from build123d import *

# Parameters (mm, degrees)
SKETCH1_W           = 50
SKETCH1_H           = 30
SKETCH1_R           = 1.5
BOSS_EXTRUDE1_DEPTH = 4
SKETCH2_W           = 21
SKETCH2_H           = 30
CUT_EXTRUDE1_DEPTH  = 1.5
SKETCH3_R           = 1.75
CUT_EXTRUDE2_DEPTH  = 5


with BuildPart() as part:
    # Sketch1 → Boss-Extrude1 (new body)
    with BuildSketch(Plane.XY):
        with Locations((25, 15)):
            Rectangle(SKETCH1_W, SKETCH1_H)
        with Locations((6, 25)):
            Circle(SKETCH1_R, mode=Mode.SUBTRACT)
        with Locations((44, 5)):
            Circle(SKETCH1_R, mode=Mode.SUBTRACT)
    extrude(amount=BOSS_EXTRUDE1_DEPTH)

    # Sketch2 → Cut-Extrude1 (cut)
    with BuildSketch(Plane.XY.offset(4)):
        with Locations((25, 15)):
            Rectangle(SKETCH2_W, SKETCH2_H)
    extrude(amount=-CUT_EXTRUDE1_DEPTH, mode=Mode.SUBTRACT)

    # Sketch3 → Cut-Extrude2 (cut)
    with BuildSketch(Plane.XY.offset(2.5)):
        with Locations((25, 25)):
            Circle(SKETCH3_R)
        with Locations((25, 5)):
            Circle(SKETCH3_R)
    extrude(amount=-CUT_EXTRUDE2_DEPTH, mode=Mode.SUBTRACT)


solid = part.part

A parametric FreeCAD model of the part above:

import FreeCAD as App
import Part
import Sketcher
Q = App.Units.Quantity


def add_polygon(sketch, points):
    """Adds a closed chain of lines whose ends are joined by coincident constraints."""
    first, n = sketch.GeometryCount, len(points)
    for a, b in zip(points, points[1:] + points[:1]):
        sketch.addGeometry(Part.LineSegment(App.Vector(*a, 0), App.Vector(*b, 0)), False)
    for i in range(n):
        sketch.addConstraint(Sketcher.Constraint("Coincident", first + i, 2, first + (i + 1) % n, 1))

doc = App.newDocument("Part")
body = doc.addObject("PartDesign::Body", "Body")

# Sketch on XY plane
sketch1 = body.newObject("Sketcher::SketchObject", "Sketch")
sketch1.AttachmentSupport = (doc.getObject("XY_Plane"), [""])
sketch1.MapMode = "FlatFace"
add_polygon(sketch1, [(0, 30), (0, 0), (50, 0), (50, 30)])  # lines 0-3
sketch1.addGeometry(Part.Circle(App.Vector(44, 5, 0), App.Vector(0, 0, 1), 1.5), False)  # 4
sketch1.addGeometry(Part.Circle(App.Vector(6, 25, 0), App.Vector(0, 0, 1), 1.5), False)  # 5
sketch1.addConstraint(Sketcher.Constraint("Vertical", 0))
sketch1.addConstraint(Sketcher.Constraint("Horizontal", 1))
sketch1.addConstraint(Sketcher.Constraint("Vertical", 2))
sketch1.addConstraint(Sketcher.Constraint("Horizontal", 3))
sketch1.addConstraint(Sketcher.Constraint("Coincident", 0, 2, -1, 1))
sketch1.addConstraint(Sketcher.Constraint("Equal", 4, 5))
sketch1.addConstraint(Sketcher.Constraint("Diameter", 4, Q("3 mm")))
sketch1.addConstraint(Sketcher.Constraint("DistanceX", 1, 1, 1, 2, Q("50 mm")))
sketch1.addConstraint(Sketcher.Constraint("DistanceY", 0, 2, 0, 1, Q("30 mm")))
sketch1.addConstraint(Sketcher.Constraint("DistanceX", -1, 1, 4, 3, Q("44 mm")))
sketch1.addConstraint(Sketcher.Constraint("DistanceY", -1, 1, 4, 3, Q("5 mm")))
sketch1.addConstraint(Sketcher.Constraint("DistanceX", -1, 1, 5, 3, Q("6 mm")))
sketch1.addConstraint(Sketcher.Constraint("DistanceY", -1, 1, 5, 3, Q("25 mm")))
pad1 = body.newObject("PartDesign::Pad", "Pad")
pad1.Profile = sketch1
pad1.Length = 4

# Sketch on XY plane
sketch2 = body.newObject("Sketcher::SketchObject", "Sketch001")
sketch2.AttachmentSupport = (doc.getObject("XY_Plane"), [""])
sketch2.MapMode = "FlatFace"
sketch2.AttachmentOffset = App.Placement(App.Vector(0, 0, 4), App.Rotation())
add_polygon(sketch2, [(14, 30), (14, 0), (36, 0), (36, 30)])  # lines 0-3
sketch2.addConstraint(Sketcher.Constraint("Vertical", 0))
sketch2.addConstraint(Sketcher.Constraint("Horizontal", 1))
sketch2.addConstraint(Sketcher.Constraint("Vertical", 2))
sketch2.addConstraint(Sketcher.Constraint("Horizontal", 3))
sketch2.addConstraint(Sketcher.Constraint("PointOnObject", 0, 2, -1))
sketch2.addConstraint(Sketcher.Constraint("DistanceX", 1, 1, 1, 2, Q("21 mm")))
sketch2.addConstraint(Sketcher.Constraint("DistanceY", 0, 2, 0, 1, Q("30 mm")))
sketch2.addConstraint(Sketcher.Constraint("DistanceX", -1, 1, 0, 2, Q("14.5 mm")))
pocket1 = body.newObject("PartDesign::Pocket", "Pocket")
pocket1.Profile = sketch2
pocket1.Length = 1.5

# Sketch on XY plane
sketch3 = body.newObject("Sketcher::SketchObject", "Sketch002")
sketch3.AttachmentSupport = (doc.getObject("XY_Plane"), [""])
sketch3.MapMode = "FlatFace"
sketch3.AttachmentOffset = App.Placement(App.Vector(0, 0, 2.5), App.Rotation())
sketch3.addGeometry(Part.Circle(App.Vector(25, 25, 0), App.Vector(0, 0, 1), 1.8), False)
sketch3.addGeometry(Part.Circle(App.Vector(25, 5, 0), App.Vector(0, 0, 1), 1.8), False)
sketch3.addConstraint(Sketcher.Constraint("Equal", 0, 1))
sketch3.addConstraint(Sketcher.Constraint("Vertical", 0, 3, 1, 3))
sketch3.addConstraint(Sketcher.Constraint("Diameter", 0, Q("3.5 mm")))
sketch3.addConstraint(Sketcher.Constraint("DistanceX", -1, 1, 0, 3, Q("25 mm")))
sketch3.addConstraint(Sketcher.Constraint("DistanceY", -1, 1, 0, 3, Q("25 mm")))
sketch3.addConstraint(Sketcher.Constraint("DistanceY", -1, 1, 1, 3, Q("5 mm")))
pocket2 = body.newObject("PartDesign::Pocket", "Pocket001")
pocket2.Profile = sketch3
pocket2.Length = 5

doc.recompute()
